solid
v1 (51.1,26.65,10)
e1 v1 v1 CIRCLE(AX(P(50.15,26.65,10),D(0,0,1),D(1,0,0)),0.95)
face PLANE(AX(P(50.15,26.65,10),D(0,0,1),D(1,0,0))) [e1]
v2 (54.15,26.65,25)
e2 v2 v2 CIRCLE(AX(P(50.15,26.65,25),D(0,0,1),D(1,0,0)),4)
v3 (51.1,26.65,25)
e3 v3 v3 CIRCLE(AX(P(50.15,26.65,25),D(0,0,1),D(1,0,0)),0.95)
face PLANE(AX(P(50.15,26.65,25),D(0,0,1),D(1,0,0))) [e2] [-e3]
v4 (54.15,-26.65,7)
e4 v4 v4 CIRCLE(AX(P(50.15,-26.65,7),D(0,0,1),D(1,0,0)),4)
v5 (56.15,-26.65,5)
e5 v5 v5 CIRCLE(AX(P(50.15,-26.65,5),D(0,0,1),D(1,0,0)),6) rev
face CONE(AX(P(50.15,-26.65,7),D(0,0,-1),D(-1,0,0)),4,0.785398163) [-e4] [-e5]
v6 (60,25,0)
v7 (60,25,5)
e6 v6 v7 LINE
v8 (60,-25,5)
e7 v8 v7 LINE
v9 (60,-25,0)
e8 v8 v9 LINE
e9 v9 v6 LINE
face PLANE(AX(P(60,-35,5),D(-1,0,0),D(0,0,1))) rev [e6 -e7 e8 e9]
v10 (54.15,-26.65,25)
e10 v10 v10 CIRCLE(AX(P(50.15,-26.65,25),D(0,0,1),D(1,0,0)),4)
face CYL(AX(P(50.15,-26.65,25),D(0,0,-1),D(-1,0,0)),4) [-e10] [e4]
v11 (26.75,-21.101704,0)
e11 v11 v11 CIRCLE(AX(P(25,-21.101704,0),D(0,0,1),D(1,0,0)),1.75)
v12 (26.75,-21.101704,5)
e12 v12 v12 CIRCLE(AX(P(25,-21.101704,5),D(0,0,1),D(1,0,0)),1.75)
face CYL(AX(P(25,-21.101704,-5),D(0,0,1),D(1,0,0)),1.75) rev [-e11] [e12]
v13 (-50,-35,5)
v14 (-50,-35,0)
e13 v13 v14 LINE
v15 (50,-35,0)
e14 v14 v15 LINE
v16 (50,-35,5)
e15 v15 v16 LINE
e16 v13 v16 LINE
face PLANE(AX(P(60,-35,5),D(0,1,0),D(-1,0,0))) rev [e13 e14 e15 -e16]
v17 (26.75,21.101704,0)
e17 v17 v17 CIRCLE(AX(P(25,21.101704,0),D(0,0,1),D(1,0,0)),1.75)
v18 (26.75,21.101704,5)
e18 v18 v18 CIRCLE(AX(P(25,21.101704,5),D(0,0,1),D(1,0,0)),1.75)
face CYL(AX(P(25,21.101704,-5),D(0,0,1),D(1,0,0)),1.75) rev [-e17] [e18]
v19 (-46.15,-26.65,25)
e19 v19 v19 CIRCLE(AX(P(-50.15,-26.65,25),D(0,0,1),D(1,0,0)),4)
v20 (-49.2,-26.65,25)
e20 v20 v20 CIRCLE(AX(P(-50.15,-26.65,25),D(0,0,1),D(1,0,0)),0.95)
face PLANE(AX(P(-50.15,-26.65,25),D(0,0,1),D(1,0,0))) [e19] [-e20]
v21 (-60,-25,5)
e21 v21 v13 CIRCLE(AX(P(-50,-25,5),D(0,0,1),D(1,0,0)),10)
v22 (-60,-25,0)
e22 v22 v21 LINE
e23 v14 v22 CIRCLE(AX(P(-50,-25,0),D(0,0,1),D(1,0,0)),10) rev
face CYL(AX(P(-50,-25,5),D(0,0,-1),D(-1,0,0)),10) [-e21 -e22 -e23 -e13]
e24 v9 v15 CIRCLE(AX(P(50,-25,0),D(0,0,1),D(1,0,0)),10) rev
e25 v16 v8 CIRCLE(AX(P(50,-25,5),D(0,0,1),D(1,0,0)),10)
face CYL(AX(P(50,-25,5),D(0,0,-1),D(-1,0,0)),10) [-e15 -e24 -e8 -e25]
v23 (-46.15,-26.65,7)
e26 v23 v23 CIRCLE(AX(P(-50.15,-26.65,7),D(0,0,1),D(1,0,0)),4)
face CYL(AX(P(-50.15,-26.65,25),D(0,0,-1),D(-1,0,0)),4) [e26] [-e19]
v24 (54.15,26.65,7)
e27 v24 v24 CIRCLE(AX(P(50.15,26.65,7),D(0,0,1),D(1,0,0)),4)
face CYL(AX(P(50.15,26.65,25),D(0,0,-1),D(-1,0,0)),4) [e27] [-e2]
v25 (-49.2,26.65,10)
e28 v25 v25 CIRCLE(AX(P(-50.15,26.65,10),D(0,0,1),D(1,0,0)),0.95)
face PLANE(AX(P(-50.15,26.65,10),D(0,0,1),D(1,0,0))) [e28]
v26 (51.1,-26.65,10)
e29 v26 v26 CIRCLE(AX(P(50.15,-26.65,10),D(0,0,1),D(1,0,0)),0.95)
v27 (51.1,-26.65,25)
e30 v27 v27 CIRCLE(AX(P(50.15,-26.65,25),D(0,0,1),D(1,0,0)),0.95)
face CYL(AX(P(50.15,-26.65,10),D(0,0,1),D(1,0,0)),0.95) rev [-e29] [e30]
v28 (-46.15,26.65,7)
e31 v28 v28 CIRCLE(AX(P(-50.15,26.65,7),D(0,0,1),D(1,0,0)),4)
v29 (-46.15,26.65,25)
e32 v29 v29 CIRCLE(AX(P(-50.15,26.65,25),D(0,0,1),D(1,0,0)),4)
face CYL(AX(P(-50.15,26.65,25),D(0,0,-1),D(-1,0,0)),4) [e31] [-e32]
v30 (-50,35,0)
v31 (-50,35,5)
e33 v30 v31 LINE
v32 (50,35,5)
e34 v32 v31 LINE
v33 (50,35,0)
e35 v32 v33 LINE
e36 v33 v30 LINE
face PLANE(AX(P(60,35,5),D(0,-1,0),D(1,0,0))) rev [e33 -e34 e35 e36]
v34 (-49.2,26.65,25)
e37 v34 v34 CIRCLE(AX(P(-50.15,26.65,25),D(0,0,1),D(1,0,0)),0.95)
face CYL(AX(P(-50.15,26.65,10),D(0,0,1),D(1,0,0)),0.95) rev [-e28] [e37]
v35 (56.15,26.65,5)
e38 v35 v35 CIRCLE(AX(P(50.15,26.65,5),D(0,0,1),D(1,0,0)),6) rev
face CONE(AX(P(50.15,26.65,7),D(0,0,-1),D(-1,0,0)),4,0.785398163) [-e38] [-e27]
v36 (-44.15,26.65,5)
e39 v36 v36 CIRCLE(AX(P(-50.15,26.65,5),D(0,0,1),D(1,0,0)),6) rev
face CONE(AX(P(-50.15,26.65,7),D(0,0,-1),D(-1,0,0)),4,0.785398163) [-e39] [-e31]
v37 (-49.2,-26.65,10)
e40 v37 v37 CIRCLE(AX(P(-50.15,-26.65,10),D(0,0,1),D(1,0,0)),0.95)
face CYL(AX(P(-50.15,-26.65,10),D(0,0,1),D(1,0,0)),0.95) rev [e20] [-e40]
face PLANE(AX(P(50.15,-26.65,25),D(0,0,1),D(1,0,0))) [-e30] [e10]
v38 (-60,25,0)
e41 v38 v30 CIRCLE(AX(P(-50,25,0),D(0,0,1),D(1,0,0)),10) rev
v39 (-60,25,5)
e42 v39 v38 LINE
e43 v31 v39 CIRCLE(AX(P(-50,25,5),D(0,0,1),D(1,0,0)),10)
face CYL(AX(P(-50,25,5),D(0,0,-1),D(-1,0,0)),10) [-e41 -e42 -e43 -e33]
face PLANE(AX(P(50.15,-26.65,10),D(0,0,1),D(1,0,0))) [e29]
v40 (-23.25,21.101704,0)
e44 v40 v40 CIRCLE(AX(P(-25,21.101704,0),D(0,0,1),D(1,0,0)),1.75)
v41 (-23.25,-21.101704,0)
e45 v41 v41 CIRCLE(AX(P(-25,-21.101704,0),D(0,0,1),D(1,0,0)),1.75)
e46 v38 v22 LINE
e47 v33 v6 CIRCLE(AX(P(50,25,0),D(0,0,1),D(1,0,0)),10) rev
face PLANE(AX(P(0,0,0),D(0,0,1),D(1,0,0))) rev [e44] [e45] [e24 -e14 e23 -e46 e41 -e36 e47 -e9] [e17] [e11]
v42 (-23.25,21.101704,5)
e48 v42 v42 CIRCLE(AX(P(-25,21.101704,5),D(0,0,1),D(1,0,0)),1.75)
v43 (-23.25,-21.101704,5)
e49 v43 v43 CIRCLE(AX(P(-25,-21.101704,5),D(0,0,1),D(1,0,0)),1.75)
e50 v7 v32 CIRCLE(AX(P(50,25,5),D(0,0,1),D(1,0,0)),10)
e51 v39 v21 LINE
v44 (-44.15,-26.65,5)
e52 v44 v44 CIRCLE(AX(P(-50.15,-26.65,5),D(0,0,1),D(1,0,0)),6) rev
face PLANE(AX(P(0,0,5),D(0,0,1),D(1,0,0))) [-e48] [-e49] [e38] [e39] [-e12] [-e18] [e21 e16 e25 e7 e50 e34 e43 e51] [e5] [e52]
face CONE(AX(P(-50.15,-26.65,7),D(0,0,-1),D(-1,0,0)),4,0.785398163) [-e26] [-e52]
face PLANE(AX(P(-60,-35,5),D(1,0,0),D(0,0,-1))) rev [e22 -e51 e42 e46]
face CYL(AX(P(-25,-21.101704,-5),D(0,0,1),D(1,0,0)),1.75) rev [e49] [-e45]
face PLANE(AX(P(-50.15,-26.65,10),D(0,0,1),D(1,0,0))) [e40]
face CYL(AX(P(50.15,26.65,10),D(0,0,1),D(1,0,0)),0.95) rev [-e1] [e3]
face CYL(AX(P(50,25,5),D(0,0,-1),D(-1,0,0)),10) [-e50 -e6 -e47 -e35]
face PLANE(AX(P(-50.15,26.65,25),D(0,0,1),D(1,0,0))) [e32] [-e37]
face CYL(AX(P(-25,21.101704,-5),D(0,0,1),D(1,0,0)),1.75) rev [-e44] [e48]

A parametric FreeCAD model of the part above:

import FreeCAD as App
import Part
import Sketcher
Q = App.Units.Quantity


def edges_at(feature, points):
    """Names of the edges that pass closest to the given points."""
    edges = feature.Shape.Edges
    near = lambda p: min(range(len(edges)), key=lambda i: edges[i].distToShape(Part.Vertex(*p))[0])
    return sorted({f"Edge{near(p) + 1}" for p in points})

doc = App.newDocument("Part")
params = doc.addObject("Spreadsheet::Sheet", "Params")
for row, (alias, value) in enumerate([
    ("sketch1_width", "120 mm"),
    ("sketch1_height", "70 mm"),
    ("pad1_length", "5 mm"),
    ("sketch2_diameter", "8 mm"),
    ("pad2_length", "20 mm"),
    ("chamfer_size", "2 mm"),
    ("sketch3_diameter", "1.9 mm"),
    ("pocket1_length", "15 mm"),
    ("fillet_radius", "10 mm"),
    ("sketch4_diameter", "3.5 mm"),
    ("pocket2_length", "10 mm"),
], start=1):
    params.set(f"A{row}", alias)
    params.set(f"B{row}", "=" + value)
    params.setAlias(f"B{row}", alias)

body = doc.addObject("PartDesign::Body", "Body")

# Sketch on XY plane
sketch1 = doc.addObject("Sketcher::SketchObject", "Sketch")
body.addObject(sketch1)
sketch1.AttachmentSupport = (doc.XY_Plane, [""])
sketch1.MapMode = "FlatFace"
sketch1.addGeometry(Part.LineSegment(App.Vector(-60, 35, 0), App.Vector(-60, -35, 0)), False)
sketch1.addGeometry(Part.LineSegment(App.Vector(-60, -35, 0), App.Vector(60, -35, 0)), False)
sketch1.addGeometry(Part.LineSegment(App.Vector(60, -35, 0), App.Vector(60, 35, 0)), False)
sketch1.addGeometry(Part.LineSegment(App.Vector(60, 35, 0), App.Vector(-60, 35, 0)), False)
sketch1.addConstraint(Sketcher.Constraint("Coincident", 0, 2, 1, 1))
sketch1.addConstraint(Sketcher.Constraint("Coincident", 1, 2, 2, 1))
sketch1.addConstraint(Sketcher.Constraint("Coincident", 2, 2, 3, 1))
sketch1.addConstraint(Sketcher.Constraint("Coincident", 3, 2, 0, 1))
sketch1.addConstraint(Sketcher.Constraint("Vertical", 0))
sketch1.addConstraint(Sketcher.Constraint("Horizontal", 1))
sketch1.addConstraint(Sketcher.Constraint("Vertical", 2))
sketch1.addConstraint(Sketcher.Constraint("Horizontal", 3))
sketch1.addConstraint(Sketcher.Constraint("Symmetric", 0, 2, 2, 2, -1, 1))
sketch1.addConstraint(Sketcher.Constraint("DistanceX", 1, 1, 1, 2, Q("120 mm")))
sketch1.addConstraint(Sketcher.Constraint("DistanceY", 0, 2, 0, 1, Q("70 mm")))
sketch1.setExpression("Constraints[9]", "Params.sketch1_width")
sketch1.setExpression("Constraints[10]", "Params.sketch1_height")
pad1 = doc.addObject("PartDesign::Pad", "Pad")
body.addObject(pad1)
pad1.Profile = sketch1
pad1.setExpression("Length", "Params.pad1_length")

# Sketch on XY plane
sketch2 = doc.addObject("Sketcher::SketchObject", "Sketch001")
body.addObject(sketch2)
sketch2.AttachmentSupport = (doc.XY_Plane, [""])
sketch2.MapMode = "FlatFace"
sketch2.AttachmentOffset = App.Placement(App.Vector(0, 0, 5), App.Rotation())
sketch2.addGeometry(Part.Circle(App.Vector(-50.1, 26.6, 0), App.Vector(0, 0, 1), 4), False)
sketch2.addGeometry(Part.Circle(App.Vector(50.1, -26.6, 0), App.Vector(0, 0, 1), 4), False)
sketch2.addGeometry(Part.Circle(App.Vector(50.1, 26.6, 0), App.Vector(0, 0, 1), 4), False)
sketch2.addGeometry(Part.Circle(App.Vector(-50.1, -26.6, 0), App.Vector(0, 0, 1), 4), False)
sketch2.addConstraint(Sketcher.Constraint("Equal", 0, 1))
sketch2.addConstraint(Sketcher.Constraint("Equal", 1, 2))
sketch2.addConstraint(Sketcher.Constraint("Equal", 2, 3))
sketch2.addConstraint(Sketcher.Constraint("Symmetric", 0, 3, 1, 3, -1, 1))
sketch2.addConstraint(Sketcher.Constraint("Symmetric", 2, 3, 3, 3, -1, 1))
sketch2.addConstraint(Sketcher.Constraint("Symmetric", 0, 3, 2, 3, -2))
sketch2.addConstraint(Sketcher.Constraint("Diameter", 0, Q("8 mm")))
sketch2.addConstraint(Sketcher.Constraint("DistanceX", 0, 3, 1, 3, Q("100.3 mm")))
sketch2.addConstraint(Sketcher.Constraint("DistanceY", 1, 3, 0, 3, Q("53.3 mm")))
sketch2.setExpression("Constraints[6]", "Params.sketch2_diameter")
pad2 = doc.addObject("PartDesign::Pad", "Pad001")
body.addObject(pad2)
pad2.Profile = sketch2
pad2.setExpression("Length", "Params.pad2_length")
doc.recompute()

chamfer = doc.addObject("PartDesign::Chamfer", "Chamfer")
body.addObject(chamfer)
chamfer.Base = (pad2, edges_at(pad2, [
    (-54.15, 26.65, 5),
    (46.15, -26.65, 5),
    (46.15, 26.65, 5),
    (-54.15, -26.65, 5),
]))
chamfer.setExpression("Size", "Params.chamfer_size")

# Sketch on XY plane
sketch3 = doc.addObject("Sketcher::SketchObject", "Sketch002")
body.addObject(sketch3)
sketch3.AttachmentSupport = (doc.XY_Plane, [""])
sketch3.MapMode = "FlatFace"
sketch3.AttachmentOffset = App.Placement(App.Vector(0, 0, 25), App.Rotation())
sketch3.addGeometry(Part.Circle(App.Vector(-50.1, 26.6, 0), App.Vector(0, 0, 1), 0.9), False)
sketch3.addGeometry(Part.Circle(App.Vector(50.1, 26.6, 0), App.Vector(0, 0, 1), 0.9), False)
sketch3.addGeometry(Part.Circle(App.Vector(50.1, -26.6, 0), App.Vector(0, 0, 1), 0.9), False)
sketch3.addGeometry(Part.Circle(App.Vector(-50.1, -26.6, 0), App.Vector(0, 0, 1), 0.9), False)
sketch3.addConstraint(Sketcher.Constraint("Equal", 0, 1))
sketch3.addConstraint(Sketcher.Constraint("Equal", 1, 2))
sketch3.addConstraint(Sketcher.Constraint("Equal", 2, 3))
sketch3.addConstraint(Sketcher.Constraint("Symmetric", 0, 3, 2, 3, -1, 1))
sketch3.addConstraint(Sketcher.Constraint("Symmetric", 1, 3, 3, 3, -1, 1))
sketch3.addConstraint(Sketcher.Constraint("Symmetric", 0, 3, 1, 3, -2))
sketch3.addConstraint(Sketcher.Constraint("Diameter", 0, Q("1.9 mm")))
sketch3.addConstraint(Sketcher.Constraint("DistanceX", 0, 3, 1, 3, Q("100.3 mm")))
sketch3.addConstraint(Sketcher.Constraint("DistanceY", 2, 3, 1, 3, Q("53.3 mm")))
sketch3.setExpression("Constraints[6]", "Params.sketch3_diameter")
pocket1 = doc.addObject("PartDesign::Pocket", "Pocket")
body.addObject(pocket1)
pocket1.Profile = sketch3
pocket1.setExpression("Length", "Params.pocket1_length")
doc.recompute()

fillet = doc.addObject("PartDesign::Fillet", "Fillet")
body.addObject(fillet)
fillet.Base = (pocket1, edges_at(pocket1, [
    (-60, 35, 2.5),
    (60, 35, 2.5),
    (60, -35, 2.5),
    (-60, -35, 2.5),
]))
fillet.setExpression("Radius", "Params.fillet_radius")

# Sketch on XY plane
sketch4 = doc.addObject("Sketcher::SketchObject", "Sketch003")
body.addObject(sketch4)
sketch4.AttachmentSupport = (doc.XY_Plane, [""])
sketch4.MapMode = "FlatFace"
sketch4.AttachmentOffset = App.Placement(App.Vector(0, 0, 5), App.Rotation())
sketch4.addGeometry(Part.Circle(App.Vector(-25, 21.1, 0), App.Vector(0, 0, 1), 1.8), False)
sketch4.addGeometry(Part.Circle(App.Vector(25, 21.1, 0), App.Vector(0, 0, 1), 1.8), False)
sketch4.addGeometry(Part.Circle(App.Vector(25, -21.1, 0), App.Vector(0, 0, 1), 1.8), False)
sketch4.addGeometry(Part.Circle(App.Vector(-25, -21.1, 0), App.Vector(0, 0, 1), 1.8), False)
sketch4.addConstraint(Sketcher.Constraint("Equal", 0, 1))
sketch4.addConstraint(Sketcher.Constraint("Equal", 1, 2))
sketch4.addConstraint(Sketcher.Constraint("Equal", 2, 3))
sketch4.addConstraint(Sketcher.Constraint("Symmetric", 0, 3, 2, 3, -1, 1))
sketch4.addConstraint(Sketcher.Constraint("Symmetric", 1, 3, 3, 3, -1, 1))
sketch4.addConstraint(Sketcher.Constraint("Symmetric", 0, 3, 1, 3, -2))
sketch4.addConstraint(Sketcher.Constraint("Diameter", 0, Q("3.5 mm")))
sketch4.addConstraint(Sketcher.Constraint("DistanceX", 0, 3, -1, 1, Q("25 mm")))
sketch4.addConstraint(Sketcher.Constraint("DistanceY", -1, 1, 0, 3, Q("21.101704 mm")))
sketch4.setExpression("Constraints[6]", "Params.sketch4_diameter")
pocket2 = doc.addObject("PartDesign::Pocket", "Pocket001")
body.addObject(pocket2)
pocket2.Profile = sketch4
pocket2.setExpression("Length", "Params.pocket2_length")

doc.recompute()
